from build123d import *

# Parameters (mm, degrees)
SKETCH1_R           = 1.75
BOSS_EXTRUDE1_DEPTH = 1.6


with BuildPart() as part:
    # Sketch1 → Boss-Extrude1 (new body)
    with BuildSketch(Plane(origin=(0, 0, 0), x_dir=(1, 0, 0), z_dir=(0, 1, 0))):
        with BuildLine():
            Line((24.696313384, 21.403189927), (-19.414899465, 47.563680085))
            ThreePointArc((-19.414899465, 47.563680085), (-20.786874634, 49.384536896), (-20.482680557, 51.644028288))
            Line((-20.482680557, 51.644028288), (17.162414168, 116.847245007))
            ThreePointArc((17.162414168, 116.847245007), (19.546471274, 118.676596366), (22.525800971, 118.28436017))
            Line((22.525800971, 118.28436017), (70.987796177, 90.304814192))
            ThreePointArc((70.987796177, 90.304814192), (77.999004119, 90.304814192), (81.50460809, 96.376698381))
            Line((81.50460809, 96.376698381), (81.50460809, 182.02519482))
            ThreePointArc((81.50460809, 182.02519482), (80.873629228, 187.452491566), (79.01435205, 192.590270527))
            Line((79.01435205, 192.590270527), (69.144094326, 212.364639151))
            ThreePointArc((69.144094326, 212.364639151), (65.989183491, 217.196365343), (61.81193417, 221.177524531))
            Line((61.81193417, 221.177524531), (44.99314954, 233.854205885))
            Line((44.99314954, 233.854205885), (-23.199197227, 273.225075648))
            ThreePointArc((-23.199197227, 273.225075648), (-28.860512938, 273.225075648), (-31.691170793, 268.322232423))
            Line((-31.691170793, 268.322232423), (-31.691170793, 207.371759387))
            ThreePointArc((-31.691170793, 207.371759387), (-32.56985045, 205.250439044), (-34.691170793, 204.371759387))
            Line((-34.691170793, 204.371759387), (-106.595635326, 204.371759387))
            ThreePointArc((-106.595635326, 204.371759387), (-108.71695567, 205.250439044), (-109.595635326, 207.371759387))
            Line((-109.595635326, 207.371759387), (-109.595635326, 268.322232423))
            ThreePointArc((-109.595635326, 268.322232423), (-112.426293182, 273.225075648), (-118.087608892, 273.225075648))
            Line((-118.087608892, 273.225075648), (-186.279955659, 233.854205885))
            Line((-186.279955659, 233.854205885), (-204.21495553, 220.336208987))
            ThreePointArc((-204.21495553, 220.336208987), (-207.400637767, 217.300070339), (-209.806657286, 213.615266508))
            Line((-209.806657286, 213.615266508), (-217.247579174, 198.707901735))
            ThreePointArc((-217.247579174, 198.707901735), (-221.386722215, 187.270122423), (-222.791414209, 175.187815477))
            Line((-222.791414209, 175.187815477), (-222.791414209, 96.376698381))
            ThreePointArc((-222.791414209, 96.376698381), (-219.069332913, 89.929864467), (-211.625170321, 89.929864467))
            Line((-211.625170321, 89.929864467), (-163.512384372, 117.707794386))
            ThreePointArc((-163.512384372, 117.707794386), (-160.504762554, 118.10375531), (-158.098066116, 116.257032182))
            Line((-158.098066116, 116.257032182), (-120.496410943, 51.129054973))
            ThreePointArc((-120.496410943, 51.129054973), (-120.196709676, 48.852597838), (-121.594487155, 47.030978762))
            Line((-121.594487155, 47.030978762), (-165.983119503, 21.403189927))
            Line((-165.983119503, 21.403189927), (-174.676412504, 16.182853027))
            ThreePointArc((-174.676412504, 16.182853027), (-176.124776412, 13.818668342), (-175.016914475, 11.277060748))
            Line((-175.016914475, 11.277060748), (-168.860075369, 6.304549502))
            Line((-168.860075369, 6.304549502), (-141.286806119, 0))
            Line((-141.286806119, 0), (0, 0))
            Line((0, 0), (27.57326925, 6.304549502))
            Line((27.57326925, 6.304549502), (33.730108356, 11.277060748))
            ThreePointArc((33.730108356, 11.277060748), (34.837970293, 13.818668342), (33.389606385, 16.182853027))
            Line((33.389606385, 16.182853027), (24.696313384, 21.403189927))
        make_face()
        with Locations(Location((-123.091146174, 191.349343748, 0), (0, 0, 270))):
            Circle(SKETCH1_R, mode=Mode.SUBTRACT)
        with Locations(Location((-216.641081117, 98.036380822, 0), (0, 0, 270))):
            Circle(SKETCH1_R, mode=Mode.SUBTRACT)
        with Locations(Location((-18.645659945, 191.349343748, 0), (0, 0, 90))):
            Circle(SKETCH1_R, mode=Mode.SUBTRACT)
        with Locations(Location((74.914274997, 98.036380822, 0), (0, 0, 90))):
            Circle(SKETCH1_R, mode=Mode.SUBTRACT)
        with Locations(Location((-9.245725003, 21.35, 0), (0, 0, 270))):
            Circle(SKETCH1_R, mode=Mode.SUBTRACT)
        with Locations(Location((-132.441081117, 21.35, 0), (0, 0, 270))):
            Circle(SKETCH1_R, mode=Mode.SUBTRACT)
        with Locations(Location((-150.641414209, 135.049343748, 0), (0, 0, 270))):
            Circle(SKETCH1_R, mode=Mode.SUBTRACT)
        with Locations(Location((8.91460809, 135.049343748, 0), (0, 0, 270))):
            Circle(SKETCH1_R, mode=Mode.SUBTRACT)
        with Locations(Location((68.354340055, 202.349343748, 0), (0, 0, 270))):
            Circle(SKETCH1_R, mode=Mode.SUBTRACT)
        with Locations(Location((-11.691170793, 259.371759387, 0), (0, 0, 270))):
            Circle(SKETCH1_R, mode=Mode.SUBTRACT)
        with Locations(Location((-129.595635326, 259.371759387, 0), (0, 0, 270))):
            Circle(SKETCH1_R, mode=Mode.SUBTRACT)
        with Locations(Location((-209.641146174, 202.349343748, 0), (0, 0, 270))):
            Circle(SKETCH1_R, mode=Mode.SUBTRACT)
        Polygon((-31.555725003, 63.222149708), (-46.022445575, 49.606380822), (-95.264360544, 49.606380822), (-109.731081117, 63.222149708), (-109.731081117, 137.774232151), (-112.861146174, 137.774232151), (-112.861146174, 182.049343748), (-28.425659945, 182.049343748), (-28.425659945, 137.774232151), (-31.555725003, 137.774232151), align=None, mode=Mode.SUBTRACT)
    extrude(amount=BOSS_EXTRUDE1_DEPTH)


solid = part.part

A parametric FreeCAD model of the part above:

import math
import FreeCAD as App
import Part
import Sketcher

V = App.Vector


def add_polygon(sketch, points):
    """Adds a closed chain of lines whose ends are joined by coincident constraints."""
    first, n = sketch.GeometryCount, len(points)
    for a, b in zip(points, points[1:] + points[:1]):
        sketch.addGeometry(Part.LineSegment(App.Vector(*a, 0), App.Vector(*b, 0)), False)
    for i in range(n):
        sketch.addConstraint(Sketcher.Constraint("Coincident", first + i, 2, first + (i + 1) % n, 1))

doc = App.newDocument("Part")
body = doc.addObject("PartDesign::Body", "Body")

# Sketch on XZ plane
sketch1 = body.newObject("Sketcher::SketchObject", "Sketch")
sketch1.AttachmentSupport = (doc.getObject("XZ_Plane"), [""])
sketch1.MapMode = "FlatFace"
sketch1.addGeometry(Part.LineSegment(V(24.696313, -21.40319, 0), V(-19.414899, -47.56368, 0)), False)  # 0
sketch1.addGeometry(Part.ArcOfCircle(Part.Circle(V(-17.884604, -50.144028, 0), V(0, 0, 1), 3), math.radians(120.670383), math.radians(210)), False)  # 1
sketch1.addGeometry(Part.LineSegment(V(-20.482681, -51.644028, 0), V(17.162414, -116.847245, 0)), False)  # 2
sketch1.addGeometry(Part.ArcOfCircle(Part.Circle(V(20.562665, -114.884109, 0), V(0, 0, 1), 3.926272), math.radians(-150), math.radians(-60)), False)  # 3
sketch1.addGeometry(Part.LineSegment(V(22.525801, -118.28436, 0), V(70.987796, -90.304814, 0)), False)  # 4
sketch1.addGeometry(Part.ArcOfCircle(Part.Circle(V(74.4934, -96.376698, 0), V(0, 0, 1), 7.011208), math.radians(0), math.radians(120)), False)  # 5
sketch1.addGeometry(Part.LineSegment(V(81.504608, -96.376698, 0), V(81.504608, -182.025195, 0)), False)  # 6
sketch1.addGeometry(Part.ArcOfCircle(Part.Circle(V(57.847964, -182.025195, 0), V(0, 0, 1), 23.656644), math.radians(-26.525802), math.radians(0)), False)  # 7
sketch1.addGeometry(Part.LineSegment(V(79.014352, -192.590271, 0), V(69.144094, -212.364639, 0)), False)  # 8
sketch1.addGeometry(Part.ArcOfCircle(Part.Circle(V(46.741125, -201.182331, 0), V(0, 0, 1), 25.038711), math.radians(-52.993877), math.radians(-26.525802)), False)  # 9
sketch1.addGeometry(Part.LineSegment(V(61.811934, -221.177525, 0), V(44.99315, -233.854206, 0)), False)  # 10
sketch1.addGeometry(Part.LineSegment(V(44.99315, -233.854206, 0), V(-23.199197, -273.225076, 0)), False)  # 11
sketch1.addGeometry(Part.ArcOfCircle(Part.Circle(V(-26.029855, -268.322232, 0), V(0, 0, 1), 5.661316), math.radians(180), math.radians(300)), False)  # 12
sketch1.addGeometry(Part.LineSegment(V(-31.691171, -268.322232, 0), V(-31.691171, -207.371759, 0)), False)  # 13
sketch1.addGeometry(Part.ArcOfCircle(Part.Circle(V(-34.691171, -207.371759, 0), V(0, 0, 1), 3), math.radians(0), math.radians(90)), False)  # 14
sketch1.addGeometry(Part.LineSegment(V(-34.691171, -204.371759, 0), V(-106.595635, -204.371759, 0)), False)  # 15
sketch1.addGeometry(Part.ArcOfCircle(Part.Circle(V(-106.595635, -207.371759, 0), V(0, 0, 1), 3), math.radians(90), math.radians(180)), False)  # 16
sketch1.addGeometry(Part.LineSegment(V(-109.595635, -207.371759, 0), V(-109.595635, -268.322232, 0)), False)  # 17
sketch1.addGeometry(Part.ArcOfCircle(Part.Circle(V(-115.256951, -268.322232, 0), V(0, 0, 1), 5.661316), math.radians(-120), math.radians(0)), False)  # 18
sketch1.addGeometry(Part.LineSegment(V(-118.087609, -273.225076, 0), V(-186.279956, -233.854206, 0)), False)  # 19
sketch1.addGeometry(Part.LineSegment(V(-186.279956, -233.854206, 0), V(-204.214956, -220.336209, 0)), False)  # 20
sketch1.addGeometry(Part.ArcOfCircle(Part.Circle(V(-192.721553, -205.087339, 0), V(0, 0, 1), 19.095192), math.radians(-153.474198), math.radians(-127.006123)), False)  # 21
sketch1.addGeometry(Part.LineSegment(V(-209.806657, -213.615267, 0), V(-217.247579, -198.707902, 0)), False)  # 22
sketch1.addGeometry(Part.ArcOfCircle(Part.Circle(V(-170.126737, -175.187815, 0), V(0, 0, 1), 52.664677), math.radians(180), math.radians(206.525802)), False)  # 23
sketch1.addGeometry(Part.LineSegment(V(-222.791414, -175.187815, 0), V(-222.791414, -96.376698, 0)), False)  # 24
sketch1.addGeometry(Part.ArcOfCircle(Part.Circle(V(-215.347252, -96.376698, 0), V(0, 0, 1), 7.444163), math.radians(60), math.radians(180)), False)  # 25
sketch1.addGeometry(Part.LineSegment(V(-211.62517, -89.929864, 0), V(-163.512384, -117.707794, 0)), False)  # 26
sketch1.addGeometry(Part.ArcOfCircle(Part.Circle(V(-161.530606, -114.275254, 0), V(0, 0, 1), 3.963556), math.radians(-120), math.radians(-30)), False)  # 27
sketch1.addGeometry(Part.LineSegment(V(-158.098066, -116.257032, 0), V(-120.496411, -51.129055, 0)), False)  # 28
sketch1.addGeometry(Part.ArcOfCircle(Part.Circle(V(-123.094487, -49.629055, 0), V(0, 0, 1), 3), math.radians(-30), math.radians(60)), False)  # 29
sketch1.addGeometry(Part.LineSegment(V(-121.594487, -47.030979, 0), V(-165.98312, -21.40319, 0)), False)  # 30
sketch1.addGeometry(Part.LineSegment(V(-165.98312, -21.40319, 0), V(-174.676413, -16.182853, 0)), False)  # 31
sketch1.addGeometry(Part.ArcOfCircle(Part.Circle(V(-173.131977, -13.610944, 0), V(0, 0, 1), 3), math.radians(128.925739), math.radians(239.015114)), False)  # 32
sketch1.addGeometry(Part.LineSegment(V(-175.016914, -11.277061, 0), V(-168.860075, -6.30455, 0)), False)  # 33
sketch1.addGeometry(Part.LineSegment(V(-168.860075, -6.30455, 0), V(-141.286806, 0, 0)), False)  # 34
sketch1.addGeometry(Part.LineSegment(V(-141.286806, 0, 0), V(0, 0, 0)), False)  # 35
sketch1.addGeometry(Part.LineSegment(V(0, 0, 0), V(27.573269, -6.30455, 0)), False)  # 36
sketch1.addGeometry(Part.LineSegment(V(27.573269, -6.30455, 0), V(33.730108, -11.277061, 0)), False)  # 37
sketch1.addGeometry(Part.ArcOfCircle(Part.Circle(V(31.845171, -13.610944, 0), V(0, 0, 1), 3), math.radians(-59.015114), math.radians(51.074261)), False)  # 38
sketch1.addGeometry(Part.LineSegment(V(33.389606, -16.182853, 0), V(24.696313, -21.40319, 0)), False)  # 39
sketch1.addGeometry(Part.Circle(V(-132.441081, -21.35, 0), V(0, 0, 1), 1.75), False)  # 40
sketch1.addGeometry(Part.Circle(V(-216.641081, -98.036381, 0), V(0, 0, 1), 1.75), False)  # 41
sketch1.addGeometry(Part.Circle(V(-150.641414, -135.049344, 0), V(0, 0, 1), 1.75), False)  # 42
sketch1.addGeometry(Part.Circle(V(-9.245725, -21.35, 0), V(0, 0, 1), 1.75), False)  # 43
add_polygon(sketch1, [(-31.555725, -137.774232), (-31.555725, -63.22215), (-46.022446, -49.606381), (-95.264361, -49.606381), (-109.731081, -63.22215), (-109.731081, -137.774232), (-112.861146, -137.774232), (-112.861146, -182.049344), (-28.42566, -182.049344), (-28.42566, -137.774232)])  # lines 44-53
sketch1.addGeometry(Part.Circle(V(74.914275, -98.036381, 0), V(0, 0, 1), 1.75), False)  # 54
sketch1.addGeometry(Part.Circle(V(8.914608, -135.049344, 0), V(0, 0, 1), 1.75), False)  # 55
sketch1.addGeometry(Part.Circle(V(-123.091146, -191.349344, 0), V(0, 0, 1), 1.75), False)  # 56
sketch1.addGeometry(Part.Circle(V(-209.641146, -202.349344, 0), V(0, 0, 1), 1.75), False)  # 57
sketch1.addGeometry(Part.Circle(V(-129.595635, -259.371759, 0), V(0, 0, 1), 1.75), False)  # 58
sketch1.addGeometry(Part.Circle(V(-18.64566, -191.349344, 0), V(0, 0, 1), 1.75), False)  # 59
sketch1.addGeometry(Part.Circle(V(-11.691171, -259.371759, 0), V(0, 0, 1), 1.75), False)  # 60
sketch1.addGeometry(Part.Circle(V(68.35434, -202.349344, 0), V(0, 0, 1), 1.75), False)  # 61
sketch1.addConstraint([
    Sketcher.Constraint("Coincident", 0, 2, 1, 1),
    Sketcher.Constraint("Coincident", 1, 2, 2, 1),
    Sketcher.Constraint("Coincident", 2, 2, 3, 1),
    Sketcher.Constraint("Coincident", 3, 2, 4, 1),
    Sketcher.Constraint("Coincident", 4, 2, 5, 2),
    Sketcher.Constraint("Coincident", 5, 1, 6, 1),
    Sketcher.Constraint("Coincident", 6, 2, 7, 2),
    Sketcher.Constraint("Coincident", 7, 1, 8, 1),
    Sketcher.Constraint("Coincident", 8, 2, 9, 2),
    Sketcher.Constraint("Coincident", 9, 1, 10, 1),
    Sketcher.Constraint("Coincident", 10, 2, 11, 1),
    Sketcher.Constraint("Coincident", 11, 2, 12, 2),
    Sketcher.Constraint("Coincident", 12, 1, 13, 1),
    Sketcher.Constraint("Coincident", 13, 2, 14, 1),
    Sketcher.Constraint("Coincident", 14, 2, 15, 1),
    Sketcher.Constraint("Coincident", 15, 2, 16, 1),
    Sketcher.Constraint("Coincident", 16, 2, 17, 1),
    Sketcher.Constraint("Coincident", 17, 2, 18, 2),
    Sketcher.Constraint("Coincident", 18, 1, 19, 1),
    Sketcher.Constraint("Coincident", 19, 2, 20, 1),
    Sketcher.Constraint("Coincident", 20, 2, 21, 2),
    Sketcher.Constraint("Coincident", 21, 1, 22, 1),
    Sketcher.Constraint("Coincident", 22, 2, 23, 2),
    Sketcher.Constraint("Coincident", 23, 1, 24, 1),
    Sketcher.Constraint("Coincident", 24, 2, 25, 2),
    Sketcher.Constraint("Coincident", 25, 1, 26, 1),
    Sketcher.Constraint("Coincident", 26, 2, 27, 1),
    Sketcher.Constraint("Coincident", 27, 2, 28, 1),
    Sketcher.Constraint("Coincident", 28, 2, 29, 1),
    Sketcher.Constraint("Coincident", 29, 2, 30, 1),
    Sketcher.Constraint("Coincident", 30, 2, 31, 1),
    Sketcher.Constraint("Coincident", 31, 2, 32, 2),
    Sketcher.Constraint("Coincident", 32, 1, 33, 1),
    Sketcher.Constraint("Coincident", 33, 2, 34, 1),
    Sketcher.Constraint("Coincident", 34, 2, 35, 1),
    Sketcher.Constraint("Coincident", 35, 2, 36, 1),
    Sketcher.Constraint("Coincident", 36, 2, 37, 1),
    Sketcher.Constraint("Coincident", 37, 2, 38, 2),
    Sketcher.Constraint("Coincident", 38, 1, 39, 1),
    Sketcher.Constraint("Coincident", 39, 2, 0, 1),
    Sketcher.Constraint("Vertical", 6),
    Sketcher.Constraint("Vertical", 13),
    Sketcher.Constraint("Horizontal", 15),
    Sketcher.Constraint("Vertical", 17),
    Sketcher.Constraint("Vertical", 24),
    Sketcher.Constraint("Horizontal", 35),
    Sketcher.Constraint("Vertical", 44),
    Sketcher.Constraint("Horizontal", 46),
    Sketcher.Constraint("Vertical", 48),
    Sketcher.Constraint("Horizontal", 49),
    Sketcher.Constraint("Vertical", 50),
    Sketcher.Constraint("Horizontal", 51),
    Sketcher.Constraint("Vertical", 52),
    Sketcher.Constraint("Horizontal", 53),
    Sketcher.Constraint("Coincident", 35, 2, -1, 1),
    Sketcher.Constraint("Radius", 1, 3.0),
    Sketcher.Constraint("Radius", 14, 3.0),
    Sketcher.Constraint("Radius", 16, 3.0),
    Sketcher.Constraint("Radius", 29, 3.0),
    Sketcher.Constraint("Radius", 32, 3.0),
    Sketcher.Constraint("Radius", 38, 3.0),
    Sketcher.Constraint("Diameter", 40, 3.5),
    Sketcher.Constraint("Diameter", 41, 3.5),
    Sketcher.Constraint("Diameter", 42, 3.5),
    Sketcher.Constraint("Diameter", 43, 3.5),
    Sketcher.Constraint("Diameter", 54, 3.5),
    Sketcher.Constraint("Diameter", 55, 3.5),
    Sketcher.Constraint("Diameter", 56, 3.5),
    Sketcher.Constraint("Diameter", 57, 3.5),
    Sketcher.Constraint("Diameter", 58, 3.5),
    Sketcher.Constraint("Diameter", 59, 3.5),
    Sketcher.Constraint("Diameter", 60, 3.5),
    Sketcher.Constraint("Diameter", 61, 3.5),
    Sketcher.Constraint("DistanceY", 40, 3, -1, 1, 21.35),
    Sketcher.Constraint("DistanceY", 43, 3, -1, 1, 21.35),
    Sketcher.Constraint("Radius", 3, 3.926272),
    Sketcher.Constraint("Radius", 9, 25.038711),
    Sketcher.Constraint("Radius", 21, 19.095192),
    Sketcher.Constraint("Radius", 5, 7.011208),
    Sketcher.Constraint("Radius", 7, 23.656644),
    Sketcher.Constraint("Radius", 12, 5.661316),
    Sketcher.Constraint("Radius", 18, 5.661316),
    Sketcher.Constraint("Radius", 23, 52.664677),
    Sketcher.Constraint("Radius", 25, 7.444163),
    Sketcher.Constraint("Radius", 27, 3.963556),
    Sketcher.Constraint("DistanceY", 50, 2, 50, 1, 44.275112),
    Sketcher.Constraint("DistanceY", 52, 1, 52, 2, 44.275112),
    Sketcher.Constraint("DistanceX", -1, 1, 5, 3, 74.4934),
    Sketcher.Constraint("DistanceY", 5, 3, -1, 1, 96.376698),
    Sketcher.Constraint("DistanceY", 25, 3, -1, 1, 96.376698),
    Sketcher.Constraint("DistanceX", 0, 2, -1, 1, 19.414899),
    Sketcher.Constraint("DistanceX", -1, 1, 3, 2, 22.525801),
    Sketcher.Constraint("DistanceY", 5, 1, -1, 1, 96.376698),
    Sketcher.Constraint("DistanceY", 22, 2, -1, 1, 198.707902),
    Sketcher.Constraint("DistanceY", 24, 2, -1, 1, 96.376698),
    Sketcher.Constraint("Distance", 2, 75.290189),
    Sketcher.Constraint("Distance", 4, 55.959092),
    Sketcher.Constraint("Distance", 8, 22.100852),
    Sketcher.Constraint("Distance", 11, 78.74174),
    Sketcher.Constraint("Distance", 19, 78.74174),
    Sketcher.Constraint("Distance", 20, 22.458862),
    Sketcher.Constraint("Distance", 26, 55.55586),
    Sketcher.Constraint("Distance", 28, 75.20331),
    Sketcher.Constraint("Distance", 31, 10.140279),
    Sketcher.Constraint("Distance", 39, 10.140279),
    Sketcher.Constraint("DistanceX", 15, 2, 15, 1, 71.904465),
    Sketcher.Constraint("DistanceX", 35, 1, 35, 2, 141.286806),
    Sketcher.Constraint("DistanceX", 46, 2, 46, 1, 49.241915),
    Sketcher.Constraint("DistanceX", 49, 2, 49, 1, 3.130065),
    Sketcher.Constraint("DistanceX", 51, 1, 51, 2, 84.435486),
    Sketcher.Constraint("DistanceX", 53, 2, 53, 1, 3.130065),
    Sketcher.Constraint("DistanceY", 6, 2, 6, 1, 85.648496),
    Sketcher.Constraint("DistanceY", 13, 1, 13, 2, 60.950473),
    Sketcher.Constraint("DistanceY", 17, 2, 17, 1, 60.950473),
    Sketcher.Constraint("DistanceY", 24, 1, 24, 2, 78.811117),
    Sketcher.Constraint("DistanceY", 44, 1, 44, 2, 74.552082),
    Sketcher.Constraint("DistanceY", 48, 2, 48, 1, 74.552082),
    Sketcher.Constraint("DistanceY", 1, 3, -1, 1, 50.144028),
    Sketcher.Constraint("DistanceY", 3, 3, -1, 1, 114.884109),
    Sketcher.Constraint("DistanceY", 9, 3, -1, 1, 201.182331),
    Sketcher.Constraint("DistanceX", 14, 3, -1, 1, 34.691171),
    Sketcher.Constraint("DistanceY", 14, 3, -1, 1, 207.371759),
    Sketcher.Constraint("DistanceX", 18, 3, -1, 1, 115.256951),
    Sketcher.Constraint("DistanceY", 21, 3, -1, 1, 205.087339),
    Sketcher.Constraint("DistanceX", 25, 3, -1, 1, 215.347252),
    Sketcher.Constraint("DistanceX", -1, 1, 38, 3, 31.845171),
    Sketcher.Constraint("DistanceX", 40, 3, -1, 1, 132.441081),
    Sketcher.Constraint("DistanceX", 41, 3, -1, 1, 216.641081),
    Sketcher.Constraint("DistanceY", 41, 3, -1, 1, 98.036381),
    Sketcher.Constraint("DistanceY", 54, 3, -1, 1, 98.036381),
    Sketcher.Constraint("DistanceX", -1, 1, 55, 3, 8.914608),
    Sketcher.Constraint("DistanceY", 58, 3, -1, 1, 259.371759),
    Sketcher.Constraint("DistanceX", 59, 3, -1, 1, 18.64566),
    Sketcher.Constraint("DistanceX", 60, 3, -1, 1, 11.691171),
    Sketcher.Constraint("DistanceY", 60, 3, -1, 1, 259.371759),
    Sketcher.Constraint("DistanceX", -1, 1, 61, 3, 68.35434),
    Sketcher.Constraint("DistanceY", 0, 2, -1, 1, 47.56368),
    Sketcher.Constraint("DistanceX", 1, 2, -1, 1, 20.482681),
    Sketcher.Constraint("DistanceY", 3, 2, -1, 1, 118.28436),
    Sketcher.Constraint("DistanceY", 7, 1, -1, 1, 192.590271),
    Sketcher.Constraint("DistanceY", 8, 2, -1, 1, 212.364639),
    Sketcher.Constraint("DistanceX", -1, 1, 10, 2, 44.99315),
    Sketcher.Constraint("DistanceY", 13, 2, -1, 1, 207.371759),
    Sketcher.Constraint("DistanceX", 14, 2, -1, 1, 34.691171),
    Sketcher.Constraint("DistanceY", 16, 2, -1, 1, 207.371759),
    Sketcher.Constraint("DistanceX", 18, 1, -1, 1, 118.087609),
    Sketcher.Constraint("DistanceY", 20, 2, -1, 1, 220.336209),
    Sketcher.Constraint("DistanceX", 22, 2, -1, 1, 217.247579),
    Sketcher.Constraint("DistanceX", 25, 1, -1, 1, 211.62517),
    Sketcher.Constraint("DistanceX", 28, 2, -1, 1, 120.496411),
    Sketcher.Constraint("DistanceY", 29, 2, -1, 1, 47.030979),
    Sketcher.Constraint("DistanceX", 30, 2, -1, 1, 165.98312),
    Sketcher.Constraint("DistanceY", 30, 2, -1, 1, 21.40319),
    Sketcher.Constraint("DistanceY", 32, 1, -1, 1, 11.277061),
    Sketcher.Constraint("DistanceY", 33, 2, -1, 1, 6.30455),
    Sketcher.Constraint("DistanceX", -1, 1, 36, 2, 27.573269),
    Sketcher.Constraint("DistanceY", 36, 2, -1, 1, 6.30455),
    Sketcher.Constraint("DistanceX", -1, 1, 37, 2, 33.730108),
    Sketcher.Constraint("DistanceY", 37, 2, -1, 1, 11.277061),
    Sketcher.Constraint("DistanceY", 39, 2, -1, 1, 21.40319),
    Sketcher.Constraint("DistanceY", 44, 2, -1, 1, 63.22215),
    Sketcher.Constraint("DistanceY", 45, 2, -1, 1, 49.606381),
    Sketcher.Constraint("DistanceX", 46, 2, -1, 1, 95.264361),
    Sketcher.Constraint("DistanceX", 47, 2, -1, 1, 109.731081),
    Sketcher.Constraint("Distance", 0, 51.285186),
    Sketcher.Constraint("Distance", 10, 21.061096),
    Sketcher.Constraint("Distance", 22, 16.661238),
    Sketcher.Constraint("Distance", 30, 51.255578),
    Sketcher.Constraint("Distance", 33, 7.914072),
    Sketcher.Constraint("Distance", 34, 28.284846),
    Sketcher.Constraint("DistanceY", 7, 3, -1, 1, 182.025195),
    Sketcher.Constraint("DistanceY", 12, 3, -1, 1, 268.322232),
    Sketcher.Constraint("DistanceY", 18, 3, -1, 1, 268.322232),
    Sketcher.Constraint("DistanceX", 21, 3, -1, 1, 192.721553),
    Sketcher.Constraint("DistanceX", 27, 3, -1, 1, 161.530606),
    Sketcher.Constraint("DistanceY", 27, 3, -1, 1, 114.275254),
    Sketcher.Constraint("DistanceX", 29, 3, -1, 1, 123.094487),
    Sketcher.Constraint("DistanceX", 32, 3, -1, 1, 173.131977),
    Sketcher.Constraint("DistanceX", 42, 3, -1, 1, 150.641414),
    Sketcher.Constraint("DistanceY", 42, 3, -1, 1, 135.049344),
    Sketcher.Constraint("DistanceX", 43, 3, -1, 1, 9.245725),
    Sketcher.Constraint("DistanceX", -1, 1, 54, 3, 74.914275),
    Sketcher.Constraint("DistanceY", 55, 3, -1, 1, 135.049344),
    Sketcher.Constraint("DistanceX", 56, 3, -1, 1, 123.091146),
    Sketcher.Constraint("DistanceY", 56, 3, -1, 1, 191.349344),
    Sketcher.Constraint("DistanceX", 57, 3, -1, 1, 209.641146),
    Sketcher.Constraint("DistanceY", 57, 3, -1, 1, 202.349344),
    Sketcher.Constraint("DistanceX", 58, 3, -1, 1, 129.595635),
    Sketcher.Constraint("DistanceY", 59, 3, -1, 1, 191.349344),
    Sketcher.Constraint("DistanceY", 61, 3, -1, 1, 202.349344),
    Sketcher.Constraint("DistanceX", -1, 1, 9, 1, 61.811934),
])
pad1 = body.newObject("PartDesign::Pad", "Pad")
pad1.Profile = sketch1
pad1.Length = 1.6
pad1.Reversed = True

doc.recompute()
